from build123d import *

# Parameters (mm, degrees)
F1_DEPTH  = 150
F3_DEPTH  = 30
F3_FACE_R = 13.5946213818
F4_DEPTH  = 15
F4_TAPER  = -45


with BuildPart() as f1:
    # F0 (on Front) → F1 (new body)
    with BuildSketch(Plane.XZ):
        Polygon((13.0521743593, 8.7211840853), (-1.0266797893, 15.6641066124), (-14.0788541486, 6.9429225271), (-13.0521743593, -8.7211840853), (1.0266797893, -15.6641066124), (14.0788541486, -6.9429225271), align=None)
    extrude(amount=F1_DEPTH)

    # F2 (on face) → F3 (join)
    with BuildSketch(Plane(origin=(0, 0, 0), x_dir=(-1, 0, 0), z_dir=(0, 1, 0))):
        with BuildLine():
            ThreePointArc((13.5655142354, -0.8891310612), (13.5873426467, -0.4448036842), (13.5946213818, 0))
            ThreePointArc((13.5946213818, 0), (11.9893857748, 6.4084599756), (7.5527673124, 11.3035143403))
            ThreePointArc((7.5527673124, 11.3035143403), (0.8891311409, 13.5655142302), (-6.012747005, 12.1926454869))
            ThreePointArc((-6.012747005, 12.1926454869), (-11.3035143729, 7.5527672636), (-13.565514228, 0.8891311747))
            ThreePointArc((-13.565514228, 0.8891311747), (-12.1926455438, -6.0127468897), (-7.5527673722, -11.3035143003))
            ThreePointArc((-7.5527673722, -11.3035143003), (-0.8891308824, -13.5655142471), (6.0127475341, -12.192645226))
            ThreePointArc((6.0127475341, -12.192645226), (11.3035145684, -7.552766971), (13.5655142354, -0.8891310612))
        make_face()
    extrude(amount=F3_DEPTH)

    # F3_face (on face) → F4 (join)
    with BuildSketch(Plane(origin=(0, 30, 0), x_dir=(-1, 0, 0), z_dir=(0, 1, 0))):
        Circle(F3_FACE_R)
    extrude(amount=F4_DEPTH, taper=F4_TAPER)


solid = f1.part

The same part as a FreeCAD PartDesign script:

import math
import FreeCAD as App
import Part
import Sketcher
from FreeCAD import Vector
Q = App.Units.Quantity


def add_polygon(sketch, points):
    """Adds a closed chain of lines whose ends are joined by coincident constraints."""
    first, n = sketch.GeometryCount, len(points)
    for a, b in zip(points, points[1:] + points[:1]):
        sketch.addGeometry(Part.LineSegment(App.Vector(*a, 0), App.Vector(*b, 0)), False)
    for i in range(n):
        sketch.addConstraint(Sketcher.Constraint("Coincident", first + i, 2, first + (i + 1) % n, 1))

doc = App.newDocument("Part")
params = doc.addObject("Spreadsheet::Sheet", "Params")
for row, (alias, value) in enumerate([
    ("pad1_length", "150 mm"),
    ("pad2_length", "30 mm"),
    ("pad3_length", "15 mm"),
    ("pad3_taper", "45 deg"),
], start=1):
    params.set(f"A{row}", alias)
    params.set(f"B{row}", "=" + value)
    params.setAlias(f"B{row}", alias)

body = doc.addObject("PartDesign::Body", "Body")

# Sketch on XZ plane
sketch1 = body.newObject("Sketcher::SketchObject", "Sketch")
sketch1.AttachmentSupport = (doc.getObject("XZ_Plane"), [""])
sketch1.MapMode = "FlatFace"
add_polygon(sketch1, [(13.052174, 8.721184), (-1.02668, 15.664107), (-14.078854, 6.942923), (-13.052174, -8.721184), (1.02668, -15.664107), (14.078854, -6.942923)])  # lines 0-5
sketch1.addConstraint([
    Sketcher.Constraint("Symmetric", 0, 2, 3, 2, -1, 1),
    Sketcher.Constraint("Symmetric", 1, 2, 4, 2, -1, 1),
    Sketcher.Constraint("Symmetric", 2, 2, 5, 2, -1, 1),
    Sketcher.Constraint("Equal", 0, 1),
    Sketcher.Constraint("Equal", 1, 2),
    Sketcher.Constraint("Angle", 0, Q("153.75 deg")),
    Sketcher.Constraint("Angle", 1, Q("-146.25 deg")),
    Sketcher.Constraint("Angle", 2, Q("-86.25 deg")),
    Sketcher.Constraint("DistanceX", 0, 2, -1, 1, 1.02668),
])
pad1 = body.newObject("PartDesign::Pad", "Pad")
pad1.Profile = sketch1
pad1.setExpression("Length", "Params.pad1_length")

# Sketch on XZ plane
sketch2 = body.newObject("Sketcher::SketchObject", "Sketch001")
sketch2.AttachmentSupport = (doc.getObject("XZ_Plane"), [""])
sketch2.MapMode = "FlatFace"
sketch2.addGeometry([
    Part.ArcOfCircle(Part.Circle(Vector(0, 0, 0), Vector(0, 0, 1), 13.594621), math.radians(180), math.radians(183.750001)),  # 0
    Part.ArcOfCircle(Part.Circle(Vector(0, 0, 0), Vector(0, 0, 1), 13.594621), math.radians(123.750002), math.radians(180)),  # 1
    Part.ArcOfCircle(Part.Circle(Vector(0, 0, 0), Vector(0, 0, 1), 13.594621), math.radians(63.750001), math.radians(123.750002)),  # 2
    Part.ArcOfCircle(Part.Circle(Vector(0, 0, 0), Vector(0, 0, 1), 13.594621), math.radians(3.750002), math.radians(63.750001)),  # 3
    Part.ArcOfCircle(Part.Circle(Vector(0, 0, 0), Vector(0, 0, 1), 13.594621), math.radians(-56.249998), math.radians(3.750002)),  # 4
    Part.ArcOfCircle(Part.Circle(Vector(0, 0, 0), Vector(0, 0, 1), 13.594621), math.radians(-116.250001), math.radians(-56.249998)),  # 5
    Part.ArcOfCircle(Part.Circle(Vector(0, 0, 0), Vector(0, 0, 1), 13.594621), math.radians(-176.249999), math.radians(-116.250001)),  # 6
], False)
sketch2.addConstraint([
    Sketcher.Constraint("Tangent", 0, 1, 1, 2),
    Sketcher.Constraint("Tangent", 1, 1, 2, 2),
    Sketcher.Constraint("Tangent", 2, 1, 3, 2),
    Sketcher.Constraint("Tangent", 3, 1, 4, 2),
    Sketcher.Constraint("Tangent", 4, 1, 5, 2),
    Sketcher.Constraint("Tangent", 5, 1, 6, 2),
    Sketcher.Constraint("Tangent", 6, 1, 0, 2),
    Sketcher.Constraint("Coincident", 0, 3, -1, 1),
    Sketcher.Constraint("Coincident", 2, 3, -1, 1),
    Sketcher.Constraint("Coincident", 4, 3, -1, 1),
    Sketcher.Constraint("PointOnObject", 0, 1, -1),
    Sketcher.Constraint("Radius", 0, 13.594621),
    Sketcher.Constraint("DistanceY", -1, 1, 3, 1, 0.889131),
    Sketcher.Constraint("DistanceY", 6, 1, -1, 1, 0.889131),
    Sketcher.Constraint("DistanceX", 1, 1, -1, 1, 7.552767),
    Sketcher.Constraint("DistanceX", -1, 1, 2, 1, 6.012747),
    Sketcher.Constraint("DistanceX", -1, 1, 4, 1, 7.552767),
    Sketcher.Constraint("DistanceX", 5, 1, -1, 1, 6.012748),
])
pad2 = body.newObject("PartDesign::Pad", "Pad001")
pad2.Profile = sketch2
pad2.setExpression("Length", "Params.pad2_length")
pad2.Reversed = True

# Sketch on XZ plane
sketch3 = body.newObject("Sketcher::SketchObject", "Sketch002")
sketch3.AttachmentSupport = (doc.getObject("XZ_Plane"), [""])
sketch3.MapMode = "FlatFace"
sketch3.AttachmentOffset = App.Placement(Vector(0, 0, -30), App.Rotation())
sketch3.addGeometry(Part.Circle(Vector(0, 0, 0), Vector(0, 0, 1), 13.594621), False)
sketch3.addConstraint([
    Sketcher.Constraint("Coincident", 0, 3, -1, 1),
    Sketcher.Constraint("Diameter", 0, 27.189243),
])
pad3 = body.newObject("PartDesign::Pad", "Pad002")
pad3.Profile = sketch3
pad3.setExpression("Length", "Params.pad3_length")
pad3.Reversed = True
pad3.setExpression("TaperAngle", "Params.pad3_taper")

doc.recompute()
